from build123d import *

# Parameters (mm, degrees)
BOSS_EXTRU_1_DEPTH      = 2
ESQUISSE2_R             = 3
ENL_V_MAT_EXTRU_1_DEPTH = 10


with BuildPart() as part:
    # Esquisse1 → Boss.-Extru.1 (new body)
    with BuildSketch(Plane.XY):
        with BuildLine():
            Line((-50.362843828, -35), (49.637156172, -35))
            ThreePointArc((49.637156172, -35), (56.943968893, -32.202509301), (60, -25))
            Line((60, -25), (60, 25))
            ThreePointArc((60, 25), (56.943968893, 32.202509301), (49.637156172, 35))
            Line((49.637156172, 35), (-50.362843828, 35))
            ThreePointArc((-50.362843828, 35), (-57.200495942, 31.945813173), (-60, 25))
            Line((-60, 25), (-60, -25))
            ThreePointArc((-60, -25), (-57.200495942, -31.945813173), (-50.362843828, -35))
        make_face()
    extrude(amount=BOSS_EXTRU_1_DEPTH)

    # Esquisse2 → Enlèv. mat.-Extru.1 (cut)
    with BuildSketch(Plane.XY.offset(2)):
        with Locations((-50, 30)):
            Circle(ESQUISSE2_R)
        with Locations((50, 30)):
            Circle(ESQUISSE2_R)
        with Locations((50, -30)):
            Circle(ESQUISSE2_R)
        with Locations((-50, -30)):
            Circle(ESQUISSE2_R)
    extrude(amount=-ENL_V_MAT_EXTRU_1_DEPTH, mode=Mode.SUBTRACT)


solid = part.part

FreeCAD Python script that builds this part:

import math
import FreeCAD as App
import Part
import Sketcher
from FreeCAD import Vector

doc = App.newDocument("Part")
body = doc.addObject("PartDesign::Body", "Body")

# Sketch on XY plane
sketch1 = body.newObject("Sketcher::SketchObject", "Sketch")
sketch1.AttachmentSupport = (doc.getObject("XY_Plane"), [""])
sketch1.MapMode = "FlatFace"
sketch1.addGeometry([
    Part.LineSegment(Vector(-50, -35, 0), Vector(50, -35, 0)),  # 0
    Part.ArcOfCircle(Part.Circle(Vector(50, -25, 0), Vector(0, 0, 1), 10), math.radians(-92), math.radians(0)),  # 1
    Part.LineSegment(Vector(60, -25, 0), Vector(60, 25, 0)),  # 2
    Part.ArcOfCircle(Part.Circle(Vector(50, 25, 0), Vector(0, 0, 1), 10), math.radians(0), math.radians(92)),  # 3
    Part.LineSegment(Vector(50, 35, 0), Vector(-50, 35, 0)),  # 4
    Part.ArcOfCircle(Part.Circle(Vector(-50, 25, 0), Vector(0, 0, 1), 10), math.radians(92), math.radians(180)),  # 5
    Part.LineSegment(Vector(-60, 25, 0), Vector(-60, -25, 0)),  # 6
    Part.ArcOfCircle(Part.Circle(Vector(-50, -25, 0), Vector(0, 0, 1), 10), math.radians(180), math.radians(268)),  # 7
], False)
sketch1.addConstraint([
    Sketcher.Constraint("Coincident", 0, 2, 1, 1),
    Sketcher.Constraint("Coincident", 1, 2, 2, 1),
    Sketcher.Constraint("Coincident", 2, 2, 3, 1),
    Sketcher.Constraint("Coincident", 3, 2, 4, 1),
    Sketcher.Constraint("Coincident", 4, 2, 5, 1),
    Sketcher.Constraint("Coincident", 5, 2, 6, 1),
    Sketcher.Constraint("Coincident", 6, 2, 7, 1),
    Sketcher.Constraint("Coincident", 7, 2, 0, 1),
    Sketcher.Constraint("Horizontal", 0),
    Sketcher.Constraint("Vertical", 2),
    Sketcher.Constraint("Horizontal", 4),
    Sketcher.Constraint("Vertical", 6),
    Sketcher.Constraint("Equal", 1, 3),
    Sketcher.Constraint("Equal", 3, 5),
    Sketcher.Constraint("Equal", 5, 7),
    Sketcher.Constraint("Symmetric", 1, 3, 5, 3, -1, 1),
    Sketcher.Constraint("Symmetric", 0, 2, 3, 2, -1),
    Sketcher.Constraint("Horizontal", 1, 3, 7, 3),
    Sketcher.Constraint("Horizontal", 2, 2, 5, 2),
    Sketcher.Constraint("Horizontal", 1, 2, 6, 2),
    Sketcher.Constraint("Radius", 1, 10.0),
    Sketcher.Constraint("DistanceX", 0, 1, 0, 2, 100.0),
    Sketcher.Constraint("DistanceY", 2, 1, 2, 2, 50.0),
    Sketcher.Constraint("DistanceY", 0, 2, -1, 1, 35.0),
    Sketcher.Constraint("DistanceY", 1, 2, -1, 1, 25.0),
    Sketcher.Constraint("DistanceY", 1, 3, 3, 3, 50.01317),
])
pad1 = body.newObject("PartDesign::Pad", "Pad")
pad1.Profile = sketch1
pad1.Length = 2

# Sketch on XY plane
sketch2 = body.newObject("Sketcher::SketchObject", "Sketch001")
sketch2.AttachmentSupport = (doc.getObject("XY_Plane"), [""])
sketch2.MapMode = "FlatFace"
sketch2.AttachmentOffset = App.Placement(Vector(0, 0, 2), App.Rotation())
sketch2.addGeometry([
    Part.Circle(Vector(-50, 30, 0), Vector(0, 0, 1), 3),
    Part.Circle(Vector(50, 30, 0), Vector(0, 0, 1), 3),
    Part.Circle(Vector(50, -30, 0), Vector(0, 0, 1), 3),
    Part.Circle(Vector(-50, -30, 0), Vector(0, 0, 1), 3),
], False)
sketch2.addConstraint([
    Sketcher.Constraint("Equal", 0, 1),
    Sketcher.Constraint("Equal", 1, 2),
    Sketcher.Constraint("Equal", 2, 3),
    Sketcher.Constraint("Symmetric", 0, 3, 2, 3, -1, 1),
    Sketcher.Constraint("Symmetric", 1, 3, 3, 3, -1, 1),
    Sketcher.Constraint("Symmetric", 0, 3, 1, 3, -2),
    Sketcher.Constraint("Diameter", 0, 6.0),
    Sketcher.Constraint("DistanceX", 0, 3, -1, 1, 50.0),
    Sketcher.Constraint("DistanceY", -1, 1, 0, 3, 30.0),
])
pocket1 = body.newObject("PartDesign::Pocket", "Pocket")
pocket1.Profile = sketch2
pocket1.Length = 10

doc.recompute()
